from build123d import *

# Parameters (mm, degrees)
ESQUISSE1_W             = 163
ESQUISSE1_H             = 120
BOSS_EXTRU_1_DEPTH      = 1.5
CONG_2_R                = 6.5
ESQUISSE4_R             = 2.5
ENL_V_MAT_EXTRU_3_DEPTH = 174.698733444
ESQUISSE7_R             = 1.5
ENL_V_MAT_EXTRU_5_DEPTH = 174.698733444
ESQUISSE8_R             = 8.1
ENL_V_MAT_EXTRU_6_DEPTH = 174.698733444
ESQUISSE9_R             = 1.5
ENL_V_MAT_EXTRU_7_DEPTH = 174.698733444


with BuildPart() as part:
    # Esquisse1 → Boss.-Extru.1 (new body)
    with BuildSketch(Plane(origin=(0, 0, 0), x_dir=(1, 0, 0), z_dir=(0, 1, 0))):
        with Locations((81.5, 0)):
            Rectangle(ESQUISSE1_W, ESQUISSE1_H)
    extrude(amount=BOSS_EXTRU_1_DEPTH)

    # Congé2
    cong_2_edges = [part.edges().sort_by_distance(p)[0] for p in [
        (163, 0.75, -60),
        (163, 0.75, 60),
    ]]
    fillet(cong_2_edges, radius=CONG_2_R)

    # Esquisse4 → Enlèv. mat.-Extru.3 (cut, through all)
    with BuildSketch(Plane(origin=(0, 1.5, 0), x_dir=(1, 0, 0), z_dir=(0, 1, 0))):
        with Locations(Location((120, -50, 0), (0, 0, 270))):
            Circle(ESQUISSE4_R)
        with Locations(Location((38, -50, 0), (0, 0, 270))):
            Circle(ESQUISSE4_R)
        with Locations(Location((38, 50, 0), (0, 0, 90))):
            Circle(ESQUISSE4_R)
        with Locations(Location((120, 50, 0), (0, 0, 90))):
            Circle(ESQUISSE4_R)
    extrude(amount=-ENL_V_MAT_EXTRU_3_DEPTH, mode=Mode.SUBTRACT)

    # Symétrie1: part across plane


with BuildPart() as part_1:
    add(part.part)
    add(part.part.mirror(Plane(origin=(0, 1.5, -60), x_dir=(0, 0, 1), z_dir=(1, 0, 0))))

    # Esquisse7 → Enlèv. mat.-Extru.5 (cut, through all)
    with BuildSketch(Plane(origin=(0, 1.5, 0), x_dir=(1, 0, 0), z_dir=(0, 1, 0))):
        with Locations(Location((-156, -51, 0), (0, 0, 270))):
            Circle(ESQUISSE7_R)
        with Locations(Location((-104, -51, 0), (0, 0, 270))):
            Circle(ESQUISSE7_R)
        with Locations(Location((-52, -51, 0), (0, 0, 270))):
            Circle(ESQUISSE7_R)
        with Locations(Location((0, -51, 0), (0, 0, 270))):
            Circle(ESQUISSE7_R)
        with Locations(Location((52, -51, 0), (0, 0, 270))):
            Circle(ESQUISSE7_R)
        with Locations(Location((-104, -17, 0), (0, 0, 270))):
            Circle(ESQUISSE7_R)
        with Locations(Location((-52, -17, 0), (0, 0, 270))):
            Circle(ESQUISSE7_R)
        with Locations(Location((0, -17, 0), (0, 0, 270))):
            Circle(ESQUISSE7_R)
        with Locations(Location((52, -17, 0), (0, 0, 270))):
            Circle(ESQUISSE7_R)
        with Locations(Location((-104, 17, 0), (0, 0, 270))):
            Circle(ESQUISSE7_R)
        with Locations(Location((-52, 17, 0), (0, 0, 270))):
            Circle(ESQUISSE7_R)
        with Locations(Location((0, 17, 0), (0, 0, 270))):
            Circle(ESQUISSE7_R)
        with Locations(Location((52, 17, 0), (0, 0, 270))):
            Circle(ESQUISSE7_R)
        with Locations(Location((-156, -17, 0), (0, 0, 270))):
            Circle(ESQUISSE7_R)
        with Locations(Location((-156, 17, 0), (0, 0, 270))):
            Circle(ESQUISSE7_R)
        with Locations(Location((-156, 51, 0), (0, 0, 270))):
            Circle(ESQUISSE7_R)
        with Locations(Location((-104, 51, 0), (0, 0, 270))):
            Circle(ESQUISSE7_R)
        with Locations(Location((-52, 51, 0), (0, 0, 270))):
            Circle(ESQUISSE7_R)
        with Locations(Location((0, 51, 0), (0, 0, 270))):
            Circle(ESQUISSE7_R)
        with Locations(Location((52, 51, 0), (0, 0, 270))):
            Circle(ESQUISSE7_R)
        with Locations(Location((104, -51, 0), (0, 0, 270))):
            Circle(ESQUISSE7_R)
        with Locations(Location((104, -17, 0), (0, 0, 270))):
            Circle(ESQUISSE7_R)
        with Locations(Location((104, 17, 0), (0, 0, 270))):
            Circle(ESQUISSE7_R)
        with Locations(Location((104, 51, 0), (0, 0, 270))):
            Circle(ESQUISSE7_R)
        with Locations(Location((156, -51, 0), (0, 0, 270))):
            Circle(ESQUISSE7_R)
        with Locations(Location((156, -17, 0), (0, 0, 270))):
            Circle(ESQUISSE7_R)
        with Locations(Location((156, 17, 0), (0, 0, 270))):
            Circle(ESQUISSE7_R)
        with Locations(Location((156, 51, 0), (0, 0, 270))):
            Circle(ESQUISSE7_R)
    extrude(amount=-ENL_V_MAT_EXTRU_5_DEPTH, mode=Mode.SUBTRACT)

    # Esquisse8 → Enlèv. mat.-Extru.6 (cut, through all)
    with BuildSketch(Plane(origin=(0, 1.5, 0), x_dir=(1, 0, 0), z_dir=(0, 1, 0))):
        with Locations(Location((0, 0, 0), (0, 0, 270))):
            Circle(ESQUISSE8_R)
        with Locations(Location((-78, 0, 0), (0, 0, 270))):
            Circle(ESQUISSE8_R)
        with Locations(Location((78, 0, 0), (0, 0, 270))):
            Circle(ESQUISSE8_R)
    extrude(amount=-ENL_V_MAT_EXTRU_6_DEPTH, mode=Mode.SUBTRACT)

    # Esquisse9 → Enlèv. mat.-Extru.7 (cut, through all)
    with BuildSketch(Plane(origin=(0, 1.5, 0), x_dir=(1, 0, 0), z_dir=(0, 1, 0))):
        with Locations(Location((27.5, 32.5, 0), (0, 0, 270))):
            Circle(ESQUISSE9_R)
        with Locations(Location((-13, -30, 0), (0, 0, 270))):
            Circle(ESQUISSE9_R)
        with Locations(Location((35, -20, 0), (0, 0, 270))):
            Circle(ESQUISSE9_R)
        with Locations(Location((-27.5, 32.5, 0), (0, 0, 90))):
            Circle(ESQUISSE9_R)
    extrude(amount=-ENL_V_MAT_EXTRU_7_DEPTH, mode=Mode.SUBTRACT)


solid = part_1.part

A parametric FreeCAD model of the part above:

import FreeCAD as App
import Part
import Sketcher
Q = App.Units.Quantity


def edges_at(feature, points):
    """Names of the edges that pass closest to the given points."""
    edges = feature.Shape.Edges
    near = lambda p: min(range(len(edges)), key=lambda i: edges[i].distToShape(Part.Vertex(*p))[0])
    return sorted({f"Edge{near(p) + 1}" for p in points})


def add_polygon(sketch, points):
    """Adds a closed chain of lines whose ends are joined by coincident constraints."""
    first, n = sketch.GeometryCount, len(points)
    for a, b in zip(points, points[1:] + points[:1]):
        sketch.addGeometry(Part.LineSegment(App.Vector(*a, 0), App.Vector(*b, 0)), False)
    for i in range(n):
        sketch.addConstraint(Sketcher.Constraint("Coincident", first + i, 2, first + (i + 1) % n, 1))

doc = App.newDocument("Part")
body = doc.addObject("PartDesign::Body", "Body")

# Sketch on XZ plane
sketch1 = doc.addObject("Sketcher::SketchObject", "Sketch")
body.addObject(sketch1)
sketch1.AttachmentSupport = (doc.XZ_Plane, [""])
sketch1.MapMode = "FlatFace"
add_polygon(sketch1, [(0, -60), (0, 60), (163, 60), (163, -60)])  # lines 0-3
sketch1.addConstraint(Sketcher.Constraint("Vertical", 0))
sketch1.addConstraint(Sketcher.Constraint("Horizontal", 1))
sketch1.addConstraint(Sketcher.Constraint("Vertical", 2))
sketch1.addConstraint(Sketcher.Constraint("Horizontal", 3))
sketch1.addConstraint(Sketcher.Constraint("Symmetric", 0, 2, 3, 2, -1, 1))
sketch1.addConstraint(Sketcher.Constraint("DistanceX", 1, 1, 1, 2, Q("163 mm")))
sketch1.addConstraint(Sketcher.Constraint("DistanceY", 0, 1, 0, 2, Q("120 mm")))
pad1 = doc.addObject("PartDesign::Pad", "Pad")
body.addObject(pad1)
pad1.Profile = sketch1
pad1.Length = 1.5
pad1.Reversed = True
doc.recompute()

fillet = doc.addObject("PartDesign::Fillet", "Fillet")
body.addObject(fillet)
fillet.Base = (pad1, edges_at(pad1, [(163, 0.75, -60), (163, 0.75, 60)]))
fillet.Radius = 6.5

# Sketch on XZ plane
sketch2 = doc.addObject("Sketcher::SketchObject", "Sketch001")
body.addObject(sketch2)
sketch2.AttachmentSupport = (doc.XZ_Plane, [""])
sketch2.MapMode = "FlatFace"
sketch2.AttachmentOffset = App.Placement(App.Vector(0, 0, -1.5), App.Rotation())
sketch2.addGeometry(Part.Circle(App.Vector(120, 50, 0), App.Vector(0, 0, 1), 2.5), False)
sketch2.addGeometry(Part.Circle(App.Vector(38, 50, 0), App.Vector(0, 0, 1), 2.5), False)
sketch2.addGeometry(Part.Circle(App.Vector(38, -50, 0), App.Vector(0, 0, 1), 2.5), False)
sketch2.addGeometry(Part.Circle(App.Vector(120, -50, 0), App.Vector(0, 0, 1), 2.5), False)
sketch2.addConstraint(Sketcher.Constraint("Equal", 0, 1))
sketch2.addConstraint(Sketcher.Constraint("Equal", 1, 2))
sketch2.addConstraint(Sketcher.Constraint("Equal", 2, 3))
sketch2.addConstraint(Sketcher.Constraint("Symmetric", 1, 3, 2, 3, -1))
sketch2.addConstraint(Sketcher.Constraint("Symmetric", 0, 3, 3, 3, -1))
sketch2.addConstraint(Sketcher.Constraint("Horizontal", 0, 3, 1, 3))
sketch2.addConstraint(Sketcher.Constraint("Diameter", 0, Q("5 mm")))
sketch2.addConstraint(Sketcher.Constraint("DistanceX", -1, 1, 0, 3, Q("120 mm")))
sketch2.addConstraint(Sketcher.Constraint("DistanceY", -1, 1, 0, 3, Q("50 mm")))
sketch2.addConstraint(Sketcher.Constraint("DistanceX", -1, 1, 1, 3, Q("38 mm")))
pocket1 = doc.addObject("PartDesign::Pocket", "Pocket")
body.addObject(pocket1)
pocket1.Profile = sketch2
pocket1.Type = "ThroughAll"
pocket1.Reversed = True
body2 = doc.addObject("PartDesign::Body", "Body001")
doc.recompute()

body2.BaseFeature = body
doc.recompute()

mirroring = doc.addObject("Part::Mirroring", "Mirroring")
mirroring.Source = body
mirroring.Base = App.Vector(0, 1.5, -60)
mirroring.Normal = App.Vector(1, 0, 0)
body3 = doc.addObject("PartDesign::Body", "Body002")
body3.BaseFeature = mirroring
boolean = doc.addObject("PartDesign::Boolean", "Boolean")
body2.addObject(boolean)
boolean.Type = "Fuse"
boolean.addObjects([body3])
doc.recompute()

# Sketch on XZ plane
sketch3 = doc.addObject("Sketcher::SketchObject", "Sketch002")
body2.addObject(sketch3)
sketch3.AttachmentSupport = (doc.getObject("XZ_Plane001"), [""])
sketch3.MapMode = "FlatFace"
sketch3.AttachmentOffset = App.Placement(App.Vector(0, 0, -1.5), App.Rotation())
sketch3.addGeometry(Part.Circle(App.Vector(-156, 51, 0), App.Vector(0, 0, 1), 1.5), False)
sketch3.addGeometry(Part.Circle(App.Vector(-104, 51, 0), App.Vector(0, 0, 1), 1.5), False)
sketch3.addGeometry(Part.Circle(App.Vector(-52, 51, 0), App.Vector(0, 0, 1), 1.5), False)
sketch3.addGeometry(Part.Circle(App.Vector(0, 51, 0), App.Vector(0, 0, 1), 1.5), False)
sketch3.addGeometry(Part.Circle(App.Vector(52, 51, 0), App.Vector(0, 0, 1), 1.5), False)
sketch3.addGeometry(Part.Circle(App.Vector(-104, 17, 0), App.Vector(0, 0, 1), 1.5), False)
sketch3.addGeometry(Part.Circle(App.Vector(-52, 17, 0), App.Vector(0, 0, 1), 1.5), False)
sketch3.addGeometry(Part.Circle(App.Vector(0, 17, 0), App.Vector(0, 0, 1), 1.5), False)
sketch3.addGeometry(Part.Circle(App.Vector(52, 17, 0), App.Vector(0, 0, 1), 1.5), False)
sketch3.addGeometry(Part.Circle(App.Vector(-104, -17, 0), App.Vector(0, 0, 1), 1.5), False)
sketch3.addGeometry(Part.Circle(App.Vector(-52, -17, 0), App.Vector(0, 0, 1), 1.5), False)
sketch3.addGeometry(Part.Circle(App.Vector(0, -17, 0), App.Vector(0, 0, 1), 1.5), False)
sketch3.addGeometry(Part.Circle(App.Vector(52, -17, 0), App.Vector(0, 0, 1), 1.5), False)
sketch3.addGeometry(Part.Circle(App.Vector(-156, 17, 0), App.Vector(0, 0, 1), 1.5), False)
sketch3.addGeometry(Part.Circle(App.Vector(-156, -17, 0), App.Vector(0, 0, 1), 1.5), False)
sketch3.addGeometry(Part.Circle(App.Vector(-156, -51, 0), App.Vector(0, 0, 1), 1.5), False)
sketch3.addGeometry(Part.Circle(App.Vector(-104, -51, 0), App.Vector(0, 0, 1), 1.5), False)
sketch3.addGeometry(Part.Circle(App.Vector(-52, -51, 0), App.Vector(0, 0, 1), 1.5), False)
sketch3.addGeometry(Part.Circle(App.Vector(0, -51, 0), App.Vector(0, 0, 1), 1.5), False)
sketch3.addGeometry(Part.Circle(App.Vector(52, -51, 0), App.Vector(0, 0, 1), 1.5), False)
sketch3.addGeometry(Part.Circle(App.Vector(104, 51, 0), App.Vector(0, 0, 1), 1.5), False)
sketch3.addGeometry(Part.Circle(App.Vector(104, 17, 0), App.Vector(0, 0, 1), 1.5), False)
sketch3.addGeometry(Part.Circle(App.Vector(104, -17, 0), App.Vector(0, 0, 1), 1.5), False)
sketch3.addGeometry(Part.Circle(App.Vector(104, -51, 0), App.Vector(0, 0, 1), 1.5), False)
sketch3.addGeometry(Part.Circle(App.Vector(156, 51, 0), App.Vector(0, 0, 1), 1.5), False)
sketch3.addGeometry(Part.Circle(App.Vector(156, 17, 0), App.Vector(0, 0, 1), 1.5), False)
sketch3.addGeometry(Part.Circle(App.Vector(156, -17, 0), App.Vector(0, 0, 1), 1.5), False)
sketch3.addGeometry(Part.Circle(App.Vector(156, -51, 0), App.Vector(0, 0, 1), 1.5), False)
sketch3.addConstraint(Sketcher.Constraint("Equal", 0, 1))
sketch3.addConstraint(Sketcher.Constraint("Equal", 1, 2))
sketch3.addConstraint(Sketcher.Constraint("Equal", 2, 3))
sketch3.addConstraint(Sketcher.Constraint("Equal", 3, 4))
sketch3.addConstraint(Sketcher.Constraint("Equal", 4, 5))
sketch3.addConstraint(Sketcher.Constraint("Equal", 5, 6))
sketch3.addConstraint(Sketcher.Constraint("Equal", 6, 7))
sketch3.addConstraint(Sketcher.Constraint("Equal", 7, 8))
sketch3.addConstraint(Sketcher.Constraint("Equal", 8, 9))
sketch3.addConstraint(Sketcher.Constraint("Equal", 9, 10))
sketch3.addConstraint(Sketcher.Constraint("Equal", 10, 11))
sketch3.addConstraint(Sketcher.Constraint("Equal", 11, 12))
sketch3.addConstraint(Sketcher.Constraint("Equal", 12, 13))
sketch3.addConstraint(Sketcher.Constraint("Equal", 13, 14))
sketch3.addConstraint(Sketcher.Constraint("Equal", 14, 15))
sketch3.addConstraint(Sketcher.Constraint("Equal", 15, 16))
sketch3.addConstraint(Sketcher.Constraint("Equal", 16, 17))
sketch3.addConstraint(Sketcher.Constraint("Equal", 17, 18))
sketch3.addConstraint(Sketcher.Constraint("Equal", 18, 19))
sketch3.addConstraint(Sketcher.Constraint("Equal", 19, 20))
sketch3.addConstraint(Sketcher.Constraint("Equal", 20, 21))
sketch3.addConstraint(Sketcher.Constraint("Equal", 21, 22))
sketch3.addConstraint(Sketcher.Constraint("Equal", 22, 23))
sketch3.addConstraint(Sketcher.Constraint("Equal", 23, 24))
sketch3.addConstraint(Sketcher.Constraint("Equal", 24, 25))
sketch3.addConstraint(Sketcher.Constraint("Equal", 25, 26))
sketch3.addConstraint(Sketcher.Constraint("Equal", 26, 27))
sketch3.addConstraint(Sketcher.Constraint("Symmetric", 8, 3, 10, 3, -1, 1))
sketch3.addConstraint(Sketcher.Constraint("Symmetric", 7, 3, 11, 3, -1, 1))
sketch3.addConstraint(Sketcher.Constraint("Symmetric", 6, 3, 12, 3, -1, 1))
sketch3.addConstraint(Sketcher.Constraint("Symmetric", 4, 3, 17, 3, -1, 1))
sketch3.addConstraint(Sketcher.Constraint("Symmetric", 3, 3, 18, 3, -1, 1))
sketch3.addConstraint(Sketcher.Constraint("Symmetric", 2, 3, 19, 3, -1, 1))
sketch3.addConstraint(Sketcher.Constraint("Symmetric", 16, 3, 20, 3, -1, 1))
sketch3.addConstraint(Sketcher.Constraint("Symmetric", 9, 3, 21, 3, -1, 1))
sketch3.addConstraint(Sketcher.Constraint("Symmetric", 5, 3, 22, 3, -1, 1))
sketch3.addConstraint(Sketcher.Constraint("Symmetric", 1, 3, 23, 3, -1, 1))
sketch3.addConstraint(Sketcher.Constraint("Symmetric", 15, 3, 24, 3, -1, 1))
sketch3.addConstraint(Sketcher.Constraint("Symmetric", 14, 3, 25, 3, -1, 1))
sketch3.addConstraint(Sketcher.Constraint("Symmetric", 13, 3, 26, 3, -1, 1))
sketch3.addConstraint(Sketcher.Constraint("Symmetric", 0, 3, 27, 3, -1, 1))
sketch3.addConstraint(Sketcher.Constraint("Symmetric", 2, 3, 4, 3, -2))
sketch3.addConstraint(Sketcher.Constraint("Symmetric", 6, 3, 8, 3, -2))
sketch3.addConstraint(Sketcher.Constraint("Symmetric", 1, 3, 20, 3, -2))
sketch3.addConstraint(Sketcher.Constraint("Symmetric", 5, 3, 21, 3, -2))
sketch3.addConstraint(Sketcher.Constraint("Symmetric", 0, 3, 24, 3, -2))
sketch3.addConstraint(Sketcher.Constraint("Symmetric", 13, 3, 25, 3, -2))
sketch3.addConstraint(Sketcher.Constraint("PointOnObject", 3, 3, -2))
sketch3.addConstraint(Sketcher.Constraint("PointOnObject", 7, 3, -2))
sketch3.addConstraint(Sketcher.Constraint("Horizontal", 0, 3, 1, 3))
sketch3.addConstraint(Sketcher.Constraint("Horizontal", 1, 3, 2, 3))
sketch3.addConstraint(Sketcher.Constraint("Horizontal", 2, 3, 3, 3))
sketch3.addConstraint(Sketcher.Constraint("Horizontal", 5, 3, 6, 3))
sketch3.addConstraint(Sketcher.Constraint("Horizontal", 6, 3, 7, 3))
sketch3.addConstraint(Sketcher.Constraint("Horizontal", 8, 3, 13, 3))
sketch3.addConstraint(Sketcher.Constraint("Vertical", 1, 3, 5, 3))
sketch3.addConstraint(Sketcher.Constraint("Vertical", 2, 3, 6, 3))
sketch3.addConstraint(Sketcher.Constraint("Vertical", 0, 3, 13, 3))
sketch3.addConstraint(Sketcher.Constraint("Diameter", 0, Q("3 mm")))
sketch3.addConstraint(Sketcher.Constraint("DistanceX", 0, 3, -1, 1, Q("156 mm")))
sketch3.addConstraint(Sketcher.Constraint("DistanceY", -1, 1, 0, 3, Q("51 mm")))
sketch3.addConstraint(Sketcher.Constraint("DistanceX", 1, 3, -1, 1, Q("104 mm")))
sketch3.addConstraint(Sketcher.Constraint("DistanceX", 2, 3, -1, 1, Q("52 mm")))
sketch3.addConstraint(Sketcher.Constraint("DistanceY", -1, 1, 5, 3, Q("17 mm")))
pocket2 = doc.addObject("PartDesign::Pocket", "Pocket001")
body2.addObject(pocket2)
pocket2.Profile = sketch3
pocket2.Type = "ThroughAll"
pocket2.Reversed = True

# Sketch on XZ plane
sketch4 = doc.addObject("Sketcher::SketchObject", "Sketch003")
body2.addObject(sketch4)
sketch4.AttachmentSupport = (doc.getObject("XZ_Plane001"), [""])
sketch4.MapMode = "FlatFace"
sketch4.AttachmentOffset = App.Placement(App.Vector(0, 0, -1.5), App.Rotation())
sketch4.addGeometry(Part.Circle(App.Vector(0, 0, 0), App.Vector(0, 0, 1), 8), False)
sketch4.addGeometry(Part.Circle(App.Vector(-78, 0, 0), App.Vector(0, 0, 1), 8), False)
sketch4.addGeometry(Part.Circle(App.Vector(78, 0, 0), App.Vector(0, 0, 1), 8), False)
sketch4.addConstraint(Sketcher.Constraint("Coincident", 0, 3, -1, 1))
sketch4.addConstraint(Sketcher.Constraint("Equal", 0, 1))
sketch4.addConstraint(Sketcher.Constraint("Equal", 1, 2))
sketch4.addConstraint(Sketcher.Constraint("Symmetric", 1, 3, 2, 3, -1, 1))
sketch4.addConstraint(Sketcher.Constraint("PointOnObject", 1, 3, -1))
sketch4.addConstraint(Sketcher.Constraint("Diameter", 0, Q("16.2 mm")))
sketch4.addConstraint(Sketcher.Constraint("DistanceX", 1, 3, -1, 1, Q("78 mm")))
pocket3 = doc.addObject("PartDesign::Pocket", "Pocket002")
body2.addObject(pocket3)
pocket3.Profile = sketch4
pocket3.Type = "ThroughAll"
pocket3.Reversed = True

# Sketch on XZ plane
sketch5 = doc.addObject("Sketcher::SketchObject", "Sketch004")
body2.addObject(sketch5)
sketch5.AttachmentSupport = (doc.getObject("XZ_Plane001"), [""])
sketch5.MapMode = "FlatFace"
sketch5.AttachmentOffset = App.Placement(App.Vector(0, 0, -1.5), App.Rotation())
sketch5.addGeometry(Part.Circle(App.Vector(27.5, -32.5, 0), App.Vector(0, 0, 1), 1.5), False)
sketch5.addGeometry(Part.Circle(App.Vector(-13, 30, 0), App.Vector(0, 0, 1), 1.5), False)
sketch5.addGeometry(Part.Circle(App.Vector(35, 20, 0), App.Vector(0, 0, 1), 1.5), False)
sketch5.addGeometry(Part.Circle(App.Vector(-27.5, -32.5, 0), App.Vector(0, 0, 1), 1.5), False)
sketch5.addConstraint(Sketcher.Constraint("Equal", 0, 1))
sketch5.addConstraint(Sketcher.Constraint("Equal", 1, 2))
sketch5.addConstraint(Sketcher.Constraint("Equal", 2, 3))
sketch5.addConstraint(Sketcher.Constraint("Symmetric", 0, 3, 3, 3, -2))
sketch5.addConstraint(Sketcher.Constraint("Diameter", 0, Q("3 mm")))
sketch5.addConstraint(Sketcher.Constraint("DistanceX", 1, 3, -1, 1, Q("13 mm")))
sketch5.addConstraint(Sketcher.Constraint("DistanceY", -1, 1, 1, 3, Q("30 mm")))
sketch5.addConstraint(Sketcher.Constraint("DistanceX", -1, 1, 2, 3, Q("35 mm")))
sketch5.addConstraint(Sketcher.Constraint("DistanceY", -1, 1, 2, 3, Q("20 mm")))
sketch5.addConstraint(Sketcher.Constraint("DistanceX", 3, 3, 0, 3, Q("55 mm")))
sketch5.addConstraint(Sketcher.Constraint("DistanceY", 0, 3, -1, 1, Q("32.5 mm")))
pocket4 = doc.addObject("PartDesign::Pocket", "Pocket003")
body2.addObject(pocket4)
pocket4.Profile = sketch5
pocket4.Type = "ThroughAll"
pocket4.Reversed = True
mirroring.Visibility = False

doc.recompute()
